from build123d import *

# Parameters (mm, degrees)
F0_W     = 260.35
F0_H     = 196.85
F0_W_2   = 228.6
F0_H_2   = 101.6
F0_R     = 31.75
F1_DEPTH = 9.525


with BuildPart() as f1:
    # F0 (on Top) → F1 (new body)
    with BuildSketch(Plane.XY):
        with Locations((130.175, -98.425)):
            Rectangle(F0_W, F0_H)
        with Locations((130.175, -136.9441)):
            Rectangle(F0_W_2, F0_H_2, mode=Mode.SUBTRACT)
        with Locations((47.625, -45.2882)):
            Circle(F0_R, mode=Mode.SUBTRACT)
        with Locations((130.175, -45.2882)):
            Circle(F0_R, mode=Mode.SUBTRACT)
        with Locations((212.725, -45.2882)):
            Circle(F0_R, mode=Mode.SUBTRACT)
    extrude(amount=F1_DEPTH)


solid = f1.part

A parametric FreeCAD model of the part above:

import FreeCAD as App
import Part
import Sketcher
from FreeCAD import Vector
Q = App.Units.Quantity

doc = App.newDocument("Part")
body = doc.addObject("PartDesign::Body", "Body")

# Sketch on XY plane
sketch1 = body.newObject("Sketcher::SketchObject", "Sketch")
sketch1.AttachmentSupport = (doc.getObject("XY_Plane"), [""])
sketch1.MapMode = "FlatFace"
sketch1.addGeometry(Part.LineSegment(Vector(0, 0, 0), Vector(0, -196.85, 0)), False)
sketch1.addGeometry(Part.LineSegment(Vector(0, -196.85, 0), Vector(260.35, -196.85, 0)), False)
sketch1.addGeometry(Part.LineSegment(Vector(260.35, -196.85, 0), Vector(260.35, 0, 0)), False)
sketch1.addGeometry(Part.LineSegment(Vector(260.35, 0, 0), Vector(0, 0, 0)), False)
sketch1.addGeometry(Part.LineSegment(Vector(244.475, -187.7441, 0), Vector(15.875, -187.7441, 0)), False)
sketch1.addGeometry(Part.LineSegment(Vector(15.875, -187.7441, 0), Vector(15.875, -86.1441, 0)), False)
sketch1.addGeometry(Part.LineSegment(Vector(15.875, -86.1441, 0), Vector(244.475, -86.1441, 0)), False)
sketch1.addGeometry(Part.LineSegment(Vector(244.475, -86.1441, 0), Vector(244.475, -187.7441, 0)), False)
sketch1.addGeometry(Part.Circle(Vector(47.625, -45.2882, 0), Vector(0, 0, 1), 31.75), False)
sketch1.addGeometry(Part.Circle(Vector(130.175, -45.2882, 0), Vector(0, 0, 1), 31.75), False)
sketch1.addGeometry(Part.Circle(Vector(212.725, -45.2882, 0), Vector(0, 0, 1), 31.75), False)
sketch1.addConstraint(Sketcher.Constraint("Coincident", 0, 2, 1, 1))
sketch1.addConstraint(Sketcher.Constraint("Coincident", 1, 2, 2, 1))
sketch1.addConstraint(Sketcher.Constraint("Coincident", 2, 2, 3, 1))
sketch1.addConstraint(Sketcher.Constraint("Coincident", 3, 2, 0, 1))
sketch1.addConstraint(Sketcher.Constraint("Coincident", 4, 2, 5, 1))
sketch1.addConstraint(Sketcher.Constraint("Coincident", 5, 2, 6, 1))
sketch1.addConstraint(Sketcher.Constraint("Coincident", 6, 2, 7, 1))
sketch1.addConstraint(Sketcher.Constraint("Coincident", 7, 2, 4, 1))
sketch1.addConstraint(Sketcher.Constraint("Vertical", 0))
sketch1.addConstraint(Sketcher.Constraint("Horizontal", 1))
sketch1.addConstraint(Sketcher.Constraint("Vertical", 2))
sketch1.addConstraint(Sketcher.Constraint("Horizontal", 3))
sketch1.addConstraint(Sketcher.Constraint("Horizontal", 4))
sketch1.addConstraint(Sketcher.Constraint("Vertical", 5))
sketch1.addConstraint(Sketcher.Constraint("Horizontal", 6))
sketch1.addConstraint(Sketcher.Constraint("Vertical", 7))
sketch1.addConstraint(Sketcher.Constraint("Coincident", 3, 2, -1, 1))
sketch1.addConstraint(Sketcher.Constraint("Equal", 8, 9))
sketch1.addConstraint(Sketcher.Constraint("Equal", 9, 10))
sketch1.addConstraint(Sketcher.Constraint("Horizontal", 8, 3, 9, 3))
sketch1.addConstraint(Sketcher.Constraint("Horizontal", 9, 3, 10, 3))
sketch1.addConstraint(Sketcher.Constraint("Diameter", 8, Q("2.5 in")))
sketch1.addConstraint(Sketcher.Constraint("DistanceX", 4, 2, 4, 1, Q("9 in")))
sketch1.addConstraint(Sketcher.Constraint("DistanceY", 5, 1, 5, 2, Q("4 in")))
sketch1.addConstraint(Sketcher.Constraint("DistanceX", 1, 1, 1, 2, Q("10.25 in")))
sketch1.addConstraint(Sketcher.Constraint("DistanceY", 0, 2, 0, 1, Q("7.75 in")))
sketch1.addConstraint(Sketcher.Constraint("DistanceX", 8, 3, 10, 3, Q("6.5 in")))
sketch1.addConstraint(Sketcher.Constraint("DistanceX", 4, 2, 9, 3, Q("4.5 in")))
sketch1.addConstraint(Sketcher.Constraint("DistanceX", 8, 3, 9, 3, Q("3.25 in")))
sketch1.addConstraint(Sketcher.Constraint("DistanceX", -1, 1, 8, 3, Q("1.875 in")))
sketch1.addConstraint(Sketcher.Constraint("DistanceY", 8, 3, -1, 1, Q("1.783 in")))
sketch1.addConstraint(Sketcher.Constraint("DistanceY", 4, 2, -1, 1, Q("7.3915 in")))
pad1 = body.newObject("PartDesign::Pad", "Pad")
pad1.Profile = sketch1
pad1.Length = Q("0.375 in")

doc.recompute()
